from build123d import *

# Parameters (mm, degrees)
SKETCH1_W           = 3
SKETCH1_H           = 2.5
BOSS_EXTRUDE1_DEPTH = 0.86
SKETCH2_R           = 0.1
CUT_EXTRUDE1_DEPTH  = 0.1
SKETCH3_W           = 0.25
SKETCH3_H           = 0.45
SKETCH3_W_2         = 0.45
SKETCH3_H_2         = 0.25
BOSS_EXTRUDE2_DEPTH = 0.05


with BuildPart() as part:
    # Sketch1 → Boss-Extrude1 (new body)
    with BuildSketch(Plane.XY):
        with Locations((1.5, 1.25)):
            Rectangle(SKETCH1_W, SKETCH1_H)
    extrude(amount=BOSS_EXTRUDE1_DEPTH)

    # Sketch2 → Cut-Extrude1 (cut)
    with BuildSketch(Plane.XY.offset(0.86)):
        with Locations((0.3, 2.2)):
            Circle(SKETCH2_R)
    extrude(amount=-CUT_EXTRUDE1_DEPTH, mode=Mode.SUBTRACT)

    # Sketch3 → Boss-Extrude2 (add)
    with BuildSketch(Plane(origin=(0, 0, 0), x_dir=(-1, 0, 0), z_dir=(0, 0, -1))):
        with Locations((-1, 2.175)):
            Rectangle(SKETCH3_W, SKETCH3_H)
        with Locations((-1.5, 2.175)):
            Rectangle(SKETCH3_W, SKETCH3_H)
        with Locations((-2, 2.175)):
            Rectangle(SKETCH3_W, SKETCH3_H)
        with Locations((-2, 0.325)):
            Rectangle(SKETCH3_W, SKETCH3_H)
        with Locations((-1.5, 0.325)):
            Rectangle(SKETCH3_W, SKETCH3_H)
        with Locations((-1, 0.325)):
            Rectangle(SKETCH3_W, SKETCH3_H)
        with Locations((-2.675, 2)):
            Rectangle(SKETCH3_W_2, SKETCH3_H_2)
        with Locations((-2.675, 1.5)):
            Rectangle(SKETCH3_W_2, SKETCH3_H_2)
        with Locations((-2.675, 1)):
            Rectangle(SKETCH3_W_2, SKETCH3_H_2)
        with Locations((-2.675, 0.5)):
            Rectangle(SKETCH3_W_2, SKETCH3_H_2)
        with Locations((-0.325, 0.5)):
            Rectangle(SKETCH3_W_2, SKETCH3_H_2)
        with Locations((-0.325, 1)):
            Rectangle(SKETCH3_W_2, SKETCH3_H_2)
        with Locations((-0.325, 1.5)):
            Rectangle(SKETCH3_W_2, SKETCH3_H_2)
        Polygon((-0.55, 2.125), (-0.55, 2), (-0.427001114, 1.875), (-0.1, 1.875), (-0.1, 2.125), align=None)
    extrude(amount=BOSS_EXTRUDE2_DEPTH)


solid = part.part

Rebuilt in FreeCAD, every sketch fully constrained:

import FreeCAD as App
import Part
import Sketcher

V = App.Vector
Q = App.Units.Quantity

doc = App.newDocument("Part")
body = doc.addObject("PartDesign::Body", "Body")

sketch1 = body.newObject("Sketcher::SketchObject", "Sketch")
sketch1.AttachmentSupport = (doc.getObject("XY_Plane"), [""])
sketch1.MapMode = "FlatFace"
sketch1.addGeometry([
    Part.LineSegment(V(0, 2.5, 0), V(0, 0, 0)),
    Part.LineSegment(V(0, 0, 0), V(3, 0, 0)),
    Part.LineSegment(V(3, 0, 0), V(3, 2.5, 0)),
    Part.LineSegment(V(3, 2.5, 0), V(0, 2.5, 0)),
], False)
sketch1.addConstraint([
    Sketcher.Constraint("Coincident", 0, 2, 1, 1),
    Sketcher.Constraint("Coincident", 1, 2, 2, 1),
    Sketcher.Constraint("Coincident", 2, 2, 3, 1),
    Sketcher.Constraint("Coincident", 3, 2, 0, 1),
    Sketcher.Constraint("Vertical", 0),
    Sketcher.Constraint("Horizontal", 1),
    Sketcher.Constraint("Vertical", 2),
    Sketcher.Constraint("Horizontal", 3),
    Sketcher.Constraint("Coincident", 0, 2, -1, 1),
    Sketcher.Constraint("DistanceX", 1, 1, 1, 2, Q("3 mm")),
    Sketcher.Constraint("DistanceY", 0, 2, 0, 1, Q("2.5 mm")),
])
pad1 = body.newObject("PartDesign::Pad", "Pad")
pad1.Profile = sketch1
pad1.Length = 0.86

sketch2 = body.newObject("Sketcher::SketchObject", "Sketch001")
sketch2.AttachmentSupport = (doc.getObject("XY_Plane"), [""])
sketch2.MapMode = "FlatFace"
sketch2.AttachmentOffset = App.Placement(V(0, 0, 0.86), App.Rotation())
sketch2.addGeometry(Part.Circle(V(0.3, 2.2, 0), V(0, 0, 1), 0.1), False)
sketch2.addConstraint([
    Sketcher.Constraint("Diameter", 0, Q("0.2 mm")),
    Sketcher.Constraint("DistanceX", -1, 1, 0, 3, Q("0.3 mm")),
    Sketcher.Constraint("DistanceY", -1, 1, 0, 3, Q("2.2 mm")),
])
pocket1 = body.newObject("PartDesign::Pocket", "Pocket")
pocket1.Profile = sketch2
pocket1.Length = 0.1

sketch3 = body.newObject("Sketcher::SketchObject", "Sketch002")
sketch3.AttachmentSupport = (doc.getObject("XY_Plane"), [""])
sketch3.MapMode = "FlatFace"
sketch3.addGeometry([
    Part.LineSegment(V(1.12, 2.4, 0), V(1.12, 1.95, 0)),
    Part.LineSegment(V(1.12, 1.95, 0), V(0.88, 1.95, 0)),
    Part.LineSegment(V(0.88, 1.95, 0), V(0.88, 2.4, 0)),
    Part.LineSegment(V(0.88, 2.4, 0), V(1.12, 2.4, 0)),
    Part.LineSegment(V(1.62, 2.4, 0), V(1.62, 1.95, 0)),
    Part.LineSegment(V(1.62, 1.95, 0), V(1.38, 1.95, 0)),
    Part.LineSegment(V(1.38, 1.95, 0), V(1.38, 2.4, 0)),
    Part.LineSegment(V(1.38, 2.4, 0), V(1.62, 2.4, 0)),
    Part.LineSegment(V(2.12, 2.4, 0), V(2.12, 1.95, 0)),
    Part.LineSegment(V(2.12, 1.95, 0), V(1.88, 1.95, 0)),
    Part.LineSegment(V(1.88, 1.95, 0), V(1.88, 2.4, 0)),
    Part.LineSegment(V(1.88, 2.4, 0), V(2.12, 2.4, 0)),
    Part.LineSegment(V(2.12, 0.55, 0), V(2.12, 0.1, 0)),
    Part.LineSegment(V(2.12, 0.1, 0), V(1.88, 0.1, 0)),
    Part.LineSegment(V(1.88, 0.1, 0), V(1.88, 0.55, 0)),
    Part.LineSegment(V(1.88, 0.55, 0), V(2.12, 0.55, 0)),
    Part.LineSegment(V(1.62, 0.55, 0), V(1.62, 0.1, 0)),
    Part.LineSegment(V(1.62, 0.1, 0), V(1.38, 0.1, 0)),
    Part.LineSegment(V(1.38, 0.1, 0), V(1.38, 0.55, 0)),
    Part.LineSegment(V(1.38, 0.55, 0), V(1.62, 0.55, 0)),
    Part.LineSegment(V(1.12, 0.55, 0), V(1.12, 0.1, 0)),
    Part.LineSegment(V(1.12, 0.1, 0), V(0.88, 0.1, 0)),
    Part.LineSegment(V(0.88, 0.1, 0), V(0.88, 0.55, 0)),
    Part.LineSegment(V(0.88, 0.55, 0), V(1.12, 0.55, 0)),
    Part.LineSegment(V(2.9, 2.12, 0), V(2.9, 1.88, 0)),
    Part.LineSegment(V(2.9, 1.88, 0), V(2.45, 1.88, 0)),
    Part.LineSegment(V(2.45, 1.88, 0), V(2.45, 2.12, 0)),
    Part.LineSegment(V(2.45, 2.12, 0), V(2.9, 2.12, 0)),
    Part.LineSegment(V(2.9, 1.62, 0), V(2.9, 1.38, 0)),
    Part.LineSegment(V(2.9, 1.38, 0), V(2.45, 1.38, 0)),
    Part.LineSegment(V(2.45, 1.38, 0), V(2.45, 1.62, 0)),
    Part.LineSegment(V(2.45, 1.62, 0), V(2.9, 1.62, 0)),
    Part.LineSegment(V(2.9, 1.12, 0), V(2.9, 0.88, 0)),
    Part.LineSegment(V(2.9, 0.88, 0), V(2.45, 0.88, 0)),
    Part.LineSegment(V(2.45, 0.88, 0), V(2.45, 1.12, 0)),
    Part.LineSegment(V(2.45, 1.12, 0), V(2.9, 1.12, 0)),
    Part.LineSegment(V(2.9, 0.62, 0), V(2.9, 0.38, 0)),
    Part.LineSegment(V(2.9, 0.38, 0), V(2.45, 0.38, 0)),
    Part.LineSegment(V(2.45, 0.38, 0), V(2.45, 0.62, 0)),
    Part.LineSegment(V(2.45, 0.62, 0), V(2.9, 0.62, 0)),
    Part.LineSegment(V(0.55, 0.62, 0), V(0.55, 0.38, 0)),
    Part.LineSegment(V(0.55, 0.38, 0), V(0.1, 0.38, 0)),
    Part.LineSegment(V(0.1, 0.38, 0), V(0.1, 0.62, 0)),
    Part.LineSegment(V(0.1, 0.62, 0), V(0.55, 0.62, 0)),
    Part.LineSegment(V(0.55, 1.12, 0), V(0.55, 0.88, 0)),
    Part.LineSegment(V(0.55, 0.88, 0), V(0.1, 0.88, 0)),
    Part.LineSegment(V(0.1, 0.88, 0), V(0.1, 1.12, 0)),
    Part.LineSegment(V(0.1, 1.12, 0), V(0.55, 1.12, 0)),
    Part.LineSegment(V(0.55, 1.62, 0), V(0.55, 1.38, 0)),
    Part.LineSegment(V(0.55, 1.38, 0), V(0.1, 1.38, 0)),
    Part.LineSegment(V(0.1, 1.38, 0), V(0.1, 1.62, 0)),
    Part.LineSegment(V(0.1, 1.62, 0), V(0.55, 1.62, 0)),
    Part.LineSegment(V(0.55, 2.12, 0), V(0.55, 2, 0)),
    Part.LineSegment(V(0.55, 2, 0), V(0.43, 1.88, 0)),
    Part.LineSegment(V(0.43, 1.88, 0), V(0.1, 1.88, 0)),
    Part.LineSegment(V(0.1, 1.88, 0), V(0.1, 2.12, 0)),
    Part.LineSegment(V(0.1, 2.12, 0), V(0.55, 2.12, 0)),
], False)
sketch3.addConstraint([
    Sketcher.Constraint("Coincident", 0, 2, 1, 1),
    Sketcher.Constraint("Coincident", 1, 2, 2, 1),
    Sketcher.Constraint("Coincident", 2, 2, 3, 1),
    Sketcher.Constraint("Coincident", 3, 2, 0, 1),
    Sketcher.Constraint("Coincident", 4, 2, 5, 1),
    Sketcher.Constraint("Coincident", 5, 2, 6, 1),
    Sketcher.Constraint("Coincident", 6, 2, 7, 1),
    Sketcher.Constraint("Coincident", 7, 2, 4, 1),
    Sketcher.Constraint("Coincident", 8, 2, 9, 1),
    Sketcher.Constraint("Coincident", 9, 2, 10, 1),
    Sketcher.Constraint("Coincident", 10, 2, 11, 1),
    Sketcher.Constraint("Coincident", 11, 2, 8, 1),
    Sketcher.Constraint("Coincident", 12, 2, 13, 1),
    Sketcher.Constraint("Coincident", 13, 2, 14, 1),
    Sketcher.Constraint("Coincident", 14, 2, 15, 1),
    Sketcher.Constraint("Coincident", 15, 2, 12, 1),
    Sketcher.Constraint("Coincident", 16, 2, 17, 1),
    Sketcher.Constraint("Coincident", 17, 2, 18, 1),
    Sketcher.Constraint("Coincident", 18, 2, 19, 1),
    Sketcher.Constraint("Coincident", 19, 2, 16, 1),
    Sketcher.Constraint("Coincident", 20, 2, 21, 1),
    Sketcher.Constraint("Coincident", 21, 2, 22, 1),
    Sketcher.Constraint("Coincident", 22, 2, 23, 1),
    Sketcher.Constraint("Coincident", 23, 2, 20, 1),
    Sketcher.Constraint("Coincident", 24, 2, 25, 1),
    Sketcher.Constraint("Coincident", 25, 2, 26, 1),
    Sketcher.Constraint("Coincident", 26, 2, 27, 1),
    Sketcher.Constraint("Coincident", 27, 2, 24, 1),
    Sketcher.Constraint("Coincident", 28, 2, 29, 1),
    Sketcher.Constraint("Coincident", 29, 2, 30, 1),
    Sketcher.Constraint("Coincident", 30, 2, 31, 1),
    Sketcher.Constraint("Coincident", 31, 2, 28, 1),
    Sketcher.Constraint("Coincident", 32, 2, 33, 1),
    Sketcher.Constraint("Coincident", 33, 2, 34, 1),
    Sketcher.Constraint("Coincident", 34, 2, 35, 1),
    Sketcher.Constraint("Coincident", 35, 2, 32, 1),
    Sketcher.Constraint("Coincident", 36, 2, 37, 1),
    Sketcher.Constraint("Coincident", 37, 2, 38, 1),
    Sketcher.Constraint("Coincident", 38, 2, 39, 1),
    Sketcher.Constraint("Coincident", 39, 2, 36, 1),
    Sketcher.Constraint("Coincident", 40, 2, 41, 1),
    Sketcher.Constraint("Coincident", 41, 2, 42, 1),
    Sketcher.Constraint("Coincident", 42, 2, 43, 1),
    Sketcher.Constraint("Coincident", 43, 2, 40, 1),
    Sketcher.Constraint("Coincident", 44, 2, 45, 1),
    Sketcher.Constraint("Coincident", 45, 2, 46, 1),
    Sketcher.Constraint("Coincident", 46, 2, 47, 1),
    Sketcher.Constraint("Coincident", 47, 2, 44, 1),
    Sketcher.Constraint("Coincident", 48, 2, 49, 1),
    Sketcher.Constraint("Coincident", 49, 2, 50, 1),
    Sketcher.Constraint("Coincident", 50, 2, 51, 1),
    Sketcher.Constraint("Coincident", 51, 2, 48, 1),
    Sketcher.Constraint("Coincident", 52, 2, 53, 1),
    Sketcher.Constraint("Coincident", 53, 2, 54, 1),
    Sketcher.Constraint("Coincident", 54, 2, 55, 1),
    Sketcher.Constraint("Coincident", 55, 2, 56, 1),
    Sketcher.Constraint("Coincident", 56, 2, 52, 1),
    Sketcher.Constraint("Vertical", 0),
    Sketcher.Constraint("Horizontal", 1),
    Sketcher.Constraint("Vertical", 2),
    Sketcher.Constraint("Horizontal", 3),
    Sketcher.Constraint("Vertical", 4),
    Sketcher.Constraint("Horizontal", 5),
    Sketcher.Constraint("Vertical", 6),
    Sketcher.Constraint("Horizontal", 7),
    Sketcher.Constraint("Vertical", 8),
    Sketcher.Constraint("Horizontal", 9),
    Sketcher.Constraint("Vertical", 10),
    Sketcher.Constraint("Horizontal", 11),
    Sketcher.Constraint("Vertical", 12),
    Sketcher.Constraint("Horizontal", 13),
    Sketcher.Constraint("Vertical", 14),
    Sketcher.Constraint("Horizontal", 15),
    Sketcher.Constraint("Vertical", 16),
    Sketcher.Constraint("Horizontal", 17),
    Sketcher.Constraint("Vertical", 18),
    Sketcher.Constraint("Horizontal", 19),
    Sketcher.Constraint("Vertical", 20),
    Sketcher.Constraint("Horizontal", 21),
    Sketcher.Constraint("Vertical", 22),
    Sketcher.Constraint("Horizontal", 23),
    Sketcher.Constraint("Vertical", 24),
    Sketcher.Constraint("Horizontal", 25),
    Sketcher.Constraint("Vertical", 26),
    Sketcher.Constraint("Horizontal", 27),
    Sketcher.Constraint("Vertical", 28),
    Sketcher.Constraint("Horizontal", 29),
    Sketcher.Constraint("Vertical", 30),
    Sketcher.Constraint("Horizontal", 31),
    Sketcher.Constraint("Vertical", 32),
    Sketcher.Constraint("Horizontal", 33),
    Sketcher.Constraint("Vertical", 34),
    Sketcher.Constraint("Horizontal", 35),
    Sketcher.Constraint("Vertical", 36),
    Sketcher.Constraint("Horizontal", 37),
    Sketcher.Constraint("Vertical", 38),
    Sketcher.Constraint("Horizontal", 39),
    Sketcher.Constraint("Vertical", 40),
    Sketcher.Constraint("Horizontal", 41),
    Sketcher.Constraint("Vertical", 42),
    Sketcher.Constraint("Horizontal", 43),
    Sketcher.Constraint("Vertical", 44),
    Sketcher.Constraint("Horizontal", 45),
    Sketcher.Constraint("Vertical", 46),
    Sketcher.Constraint("Horizontal", 47),
    Sketcher.Constraint("Vertical", 48),
    Sketcher.Constraint("Horizontal", 49),
    Sketcher.Constraint("Vertical", 50),
    Sketcher.Constraint("Horizontal", 51),
    Sketcher.Constraint("Vertical", 52),
    Sketcher.Constraint("Horizontal", 54),
    Sketcher.Constraint("Vertical", 55),
    Sketcher.Constraint("Horizontal", 56),
    Sketcher.Constraint("Horizontal", 1, 2, 4, 2),
    Sketcher.Constraint("Horizontal", 3, 2, 6, 2),
    Sketcher.Constraint("Horizontal", 5, 2, 8, 2),
    Sketcher.Constraint("Horizontal", 7, 2, 10, 2),
    Sketcher.Constraint("Horizontal", 13, 2, 16, 2),
    Sketcher.Constraint("Horizontal", 15, 2, 18, 2),
    Sketcher.Constraint("Horizontal", 17, 2, 20, 2),
    Sketcher.Constraint("Horizontal", 19, 2, 22, 2),
    Sketcher.Constraint("Horizontal", 37, 2, 40, 2),
    Sketcher.Constraint("Horizontal", 39, 2, 42, 2),
    Sketcher.Constraint("Horizontal", 33, 2, 44, 2),
    Sketcher.Constraint("Horizontal", 35, 2, 46, 2),
    Sketcher.Constraint("Horizontal", 29, 2, 48, 2),
    Sketcher.Constraint("Horizontal", 31, 2, 50, 2),
    Sketcher.Constraint("Horizontal", 25, 2, 53, 2),
    Sketcher.Constraint("Horizontal", 27, 2, 55, 2),
    Sketcher.Constraint("Vertical", 11, 2, 12, 2),
    Sketcher.Constraint("Vertical", 10, 2, 13, 2),
    Sketcher.Constraint("Vertical", 7, 2, 16, 2),
    Sketcher.Constraint("Vertical", 6, 2, 17, 2),
    Sketcher.Constraint("Vertical", 3, 2, 20, 2),
    Sketcher.Constraint("Vertical", 2, 2, 21, 2),
    Sketcher.Constraint("Vertical", 27, 2, 28, 2),
    Sketcher.Constraint("Vertical", 26, 2, 29, 2),
    Sketcher.Constraint("Vertical", 31, 2, 32, 2),
    Sketcher.Constraint("Vertical", 30, 2, 33, 2),
    Sketcher.Constraint("Vertical", 35, 2, 36, 2),
    Sketcher.Constraint("Vertical", 34, 2, 37, 2),
    Sketcher.Constraint("Vertical", 43, 2, 44, 2),
    Sketcher.Constraint("Vertical", 42, 2, 45, 2),
    Sketcher.Constraint("Vertical", 47, 2, 48, 2),
    Sketcher.Constraint("Vertical", 46, 2, 49, 2),
    Sketcher.Constraint("Vertical", 51, 2, 52, 2),
    Sketcher.Constraint("Vertical", 50, 2, 54, 2),
    Sketcher.Constraint("Equal", 3, 5),
    Sketcher.Constraint("Equal", 7, 9),
    Sketcher.Constraint("Equal", 39, 41),
    Sketcher.Constraint("Equal", 56, 0),
    Sketcher.Constraint("Equal", 10, 12),
    Sketcher.Constraint("Equal", 23, 24),
    Sketcher.Constraint("Equal", 26, 28),
    Sketcher.Constraint("Equal", 30, 32),
    Sketcher.Constraint("Equal", 34, 36),
    Sketcher.Constraint("DistanceY", -1, 1, 52, 2, Q("2 mm")),
    Sketcher.Constraint("DistanceX", 0, 2, 8, 2, Q("1 mm")),
    Sketcher.Constraint("DistanceX", 1, 2, 1, 1, Q("0.25 mm")),
    Sketcher.Constraint("DistanceX", 25, 2, 25, 1, Q("0.45 mm")),
    Sketcher.Constraint("DistanceY", -1, 1, 2, 2, Q("2.4 mm")),
    Sketcher.Constraint("DistanceY", -1, 1, 12, 2, Q("0.1 mm")),
    Sketcher.Constraint("DistanceX", -1, 1, 24, 2, Q("2.9 mm")),
    Sketcher.Constraint("DistanceX", -1, 1, 41, 2, Q("0.1 mm")),
    Sketcher.Constraint("DistanceX", 0, 2, 4, 2, Q("0.5 mm")),
    Sketcher.Constraint("DistanceY", 28, 2, 24, 2, Q("0.5 mm")),
    Sketcher.Constraint("DistanceY", 32, 2, 28, 2, Q("0.5 mm")),
    Sketcher.Constraint("DistanceY", 36, 2, 32, 2, Q("0.5 mm")),
    Sketcher.Constraint("DistanceX", 54, 2, 54, 1, Q("0.327001 mm")),
    Sketcher.Constraint("DistanceY", 52, 2, 52, 1, Q("0.125 mm")),
    Sketcher.Constraint("DistanceX", -1, 1, 0, 2, Q("1.125 mm")),
])
pad2 = body.newObject("PartDesign::Pad", "Pad001")
pad2.Profile = sketch3
pad2.Length = 0.05
pad2.Reversed = True

doc.recompute()
